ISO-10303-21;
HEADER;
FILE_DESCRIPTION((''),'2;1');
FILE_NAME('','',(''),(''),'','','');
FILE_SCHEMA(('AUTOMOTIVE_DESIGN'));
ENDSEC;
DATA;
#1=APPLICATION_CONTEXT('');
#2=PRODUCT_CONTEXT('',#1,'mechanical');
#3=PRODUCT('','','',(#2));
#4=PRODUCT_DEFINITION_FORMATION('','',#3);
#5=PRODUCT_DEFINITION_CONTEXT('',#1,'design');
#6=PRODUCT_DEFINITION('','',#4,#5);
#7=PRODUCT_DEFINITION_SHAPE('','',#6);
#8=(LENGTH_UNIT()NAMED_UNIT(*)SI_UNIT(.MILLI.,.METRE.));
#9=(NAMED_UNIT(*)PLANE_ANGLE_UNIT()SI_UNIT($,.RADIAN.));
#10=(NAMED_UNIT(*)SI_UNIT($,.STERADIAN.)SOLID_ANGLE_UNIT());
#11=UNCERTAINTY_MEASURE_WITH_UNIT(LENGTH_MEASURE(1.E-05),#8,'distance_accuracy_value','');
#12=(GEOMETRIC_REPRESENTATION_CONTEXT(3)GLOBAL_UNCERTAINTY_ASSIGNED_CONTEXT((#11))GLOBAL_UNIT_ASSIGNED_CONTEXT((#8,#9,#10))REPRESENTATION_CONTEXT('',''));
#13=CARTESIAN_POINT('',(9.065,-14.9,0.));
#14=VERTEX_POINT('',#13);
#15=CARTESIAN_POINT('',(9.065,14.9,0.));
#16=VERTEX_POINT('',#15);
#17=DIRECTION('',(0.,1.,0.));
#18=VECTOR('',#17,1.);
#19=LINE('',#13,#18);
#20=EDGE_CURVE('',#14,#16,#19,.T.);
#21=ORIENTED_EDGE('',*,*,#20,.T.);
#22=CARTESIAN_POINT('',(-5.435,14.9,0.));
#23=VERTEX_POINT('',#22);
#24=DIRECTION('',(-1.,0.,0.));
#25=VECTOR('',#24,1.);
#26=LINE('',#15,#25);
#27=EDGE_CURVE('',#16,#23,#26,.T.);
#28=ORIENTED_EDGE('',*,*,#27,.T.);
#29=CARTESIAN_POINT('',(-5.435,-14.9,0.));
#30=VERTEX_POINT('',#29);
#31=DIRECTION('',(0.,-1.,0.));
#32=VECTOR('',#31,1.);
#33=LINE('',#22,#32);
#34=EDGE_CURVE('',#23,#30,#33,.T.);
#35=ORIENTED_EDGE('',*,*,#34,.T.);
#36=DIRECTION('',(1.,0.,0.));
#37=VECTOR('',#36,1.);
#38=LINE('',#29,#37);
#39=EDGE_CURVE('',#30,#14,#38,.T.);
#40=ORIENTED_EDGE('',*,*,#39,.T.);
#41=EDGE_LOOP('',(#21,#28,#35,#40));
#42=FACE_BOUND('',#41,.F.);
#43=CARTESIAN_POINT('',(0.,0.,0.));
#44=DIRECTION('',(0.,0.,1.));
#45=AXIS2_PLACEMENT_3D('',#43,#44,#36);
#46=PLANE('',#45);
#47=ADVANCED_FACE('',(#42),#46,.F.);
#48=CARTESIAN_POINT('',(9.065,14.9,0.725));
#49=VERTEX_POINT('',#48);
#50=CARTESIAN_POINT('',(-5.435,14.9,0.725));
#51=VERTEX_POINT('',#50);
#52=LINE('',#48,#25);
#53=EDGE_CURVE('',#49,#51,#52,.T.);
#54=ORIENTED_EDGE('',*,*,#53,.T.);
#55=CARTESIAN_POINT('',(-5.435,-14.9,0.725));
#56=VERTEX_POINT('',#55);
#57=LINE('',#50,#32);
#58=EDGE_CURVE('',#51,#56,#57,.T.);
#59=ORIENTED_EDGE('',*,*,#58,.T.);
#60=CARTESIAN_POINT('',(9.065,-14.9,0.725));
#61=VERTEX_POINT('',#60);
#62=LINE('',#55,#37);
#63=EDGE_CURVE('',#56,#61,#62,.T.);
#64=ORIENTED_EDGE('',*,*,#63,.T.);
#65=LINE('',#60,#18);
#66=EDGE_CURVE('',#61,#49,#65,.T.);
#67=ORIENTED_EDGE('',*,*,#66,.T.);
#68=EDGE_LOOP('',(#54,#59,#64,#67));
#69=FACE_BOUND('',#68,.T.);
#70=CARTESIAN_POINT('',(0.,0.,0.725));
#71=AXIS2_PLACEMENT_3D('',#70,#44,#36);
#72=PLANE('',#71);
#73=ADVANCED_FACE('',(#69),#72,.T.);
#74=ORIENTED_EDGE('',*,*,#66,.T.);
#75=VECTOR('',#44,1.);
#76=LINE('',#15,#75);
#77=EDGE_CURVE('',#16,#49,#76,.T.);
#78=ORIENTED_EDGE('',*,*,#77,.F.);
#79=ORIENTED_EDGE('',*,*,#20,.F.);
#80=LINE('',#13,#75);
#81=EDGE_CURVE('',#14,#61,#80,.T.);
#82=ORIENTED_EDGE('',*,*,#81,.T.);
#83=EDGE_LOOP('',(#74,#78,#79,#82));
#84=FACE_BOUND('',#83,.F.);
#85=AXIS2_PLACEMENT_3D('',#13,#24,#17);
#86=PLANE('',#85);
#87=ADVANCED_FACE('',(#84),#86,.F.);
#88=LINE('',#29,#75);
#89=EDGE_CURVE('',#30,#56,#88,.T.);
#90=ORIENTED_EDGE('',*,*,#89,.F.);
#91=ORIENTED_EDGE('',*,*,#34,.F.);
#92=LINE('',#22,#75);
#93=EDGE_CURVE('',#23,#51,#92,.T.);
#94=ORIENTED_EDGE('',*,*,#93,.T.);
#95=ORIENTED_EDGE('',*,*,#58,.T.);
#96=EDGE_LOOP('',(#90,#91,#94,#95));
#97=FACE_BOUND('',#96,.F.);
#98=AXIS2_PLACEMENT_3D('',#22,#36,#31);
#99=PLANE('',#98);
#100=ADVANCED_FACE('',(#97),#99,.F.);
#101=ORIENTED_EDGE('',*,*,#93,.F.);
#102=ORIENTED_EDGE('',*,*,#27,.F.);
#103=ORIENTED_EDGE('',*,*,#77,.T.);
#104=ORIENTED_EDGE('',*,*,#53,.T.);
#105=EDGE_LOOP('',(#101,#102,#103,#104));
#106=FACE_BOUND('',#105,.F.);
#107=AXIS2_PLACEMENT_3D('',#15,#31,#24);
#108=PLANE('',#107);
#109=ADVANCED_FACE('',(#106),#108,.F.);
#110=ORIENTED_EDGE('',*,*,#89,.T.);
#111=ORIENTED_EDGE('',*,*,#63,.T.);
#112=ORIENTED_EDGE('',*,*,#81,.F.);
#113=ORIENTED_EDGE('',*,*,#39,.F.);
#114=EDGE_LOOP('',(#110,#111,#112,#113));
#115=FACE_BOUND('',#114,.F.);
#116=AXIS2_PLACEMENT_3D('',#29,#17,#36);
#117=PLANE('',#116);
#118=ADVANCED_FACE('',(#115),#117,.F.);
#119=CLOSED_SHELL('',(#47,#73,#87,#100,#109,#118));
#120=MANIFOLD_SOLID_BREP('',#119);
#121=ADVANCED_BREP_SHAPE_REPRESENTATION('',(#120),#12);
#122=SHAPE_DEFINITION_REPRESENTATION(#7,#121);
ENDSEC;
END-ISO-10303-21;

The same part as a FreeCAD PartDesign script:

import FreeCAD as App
import Part
import Sketcher

V = App.Vector
Q = App.Units.Quantity


def add_polygon(sketch, points):
    """Adds a closed chain of lines whose ends are joined by coincident constraints."""
    first, n = sketch.GeometryCount, len(points)
    for a, b in zip(points, points[1:] + points[:1]):
        sketch.addGeometry(Part.LineSegment(App.Vector(*a, 0), App.Vector(*b, 0)), False)
    for i in range(n):
        sketch.addConstraint(Sketcher.Constraint("Coincident", first + i, 2, first + (i + 1) % n, 1))

doc = App.newDocument("Part")
body = doc.addObject("PartDesign::Body", "Body")

# Sketch on XY plane
sketch1 = body.newObject("Sketcher::SketchObject", "Sketch")
sketch1.AttachmentSupport = (doc.getObject("XY_Plane"), [""])
sketch1.MapMode = "FlatFace"
add_polygon(sketch1, [(9, -15), (9, 15), (-5, 15), (-5, -15)])  # lines 0-3
sketch1.addConstraint(Sketcher.Constraint("Vertical", 0))
sketch1.addConstraint(Sketcher.Constraint("Horizontal", 1))
sketch1.addConstraint(Sketcher.Constraint("Vertical", 2))
sketch1.addConstraint(Sketcher.Constraint("Horizontal", 3))
sketch1.addConstraint(Sketcher.Constraint("DistanceX", 1, 2, 1, 1, Q("14.5 mm")))
sketch1.addConstraint(Sketcher.Constraint("DistanceY", 0, 1, 0, 2, Q("29.8 mm")))
sketch1.addConstraint(Sketcher.Constraint("DistanceY", -1, 1, 0, 2, Q("14.9 mm")))
sketch1.addConstraint(Sketcher.Constraint("DistanceX", -1, 1, 0, 2, Q("9.065 mm")))
pad1 = body.newObject("PartDesign::Pad", "Pad")
pad1.Profile = sketch1
pad1.Length = 0.725

doc.recompute()
